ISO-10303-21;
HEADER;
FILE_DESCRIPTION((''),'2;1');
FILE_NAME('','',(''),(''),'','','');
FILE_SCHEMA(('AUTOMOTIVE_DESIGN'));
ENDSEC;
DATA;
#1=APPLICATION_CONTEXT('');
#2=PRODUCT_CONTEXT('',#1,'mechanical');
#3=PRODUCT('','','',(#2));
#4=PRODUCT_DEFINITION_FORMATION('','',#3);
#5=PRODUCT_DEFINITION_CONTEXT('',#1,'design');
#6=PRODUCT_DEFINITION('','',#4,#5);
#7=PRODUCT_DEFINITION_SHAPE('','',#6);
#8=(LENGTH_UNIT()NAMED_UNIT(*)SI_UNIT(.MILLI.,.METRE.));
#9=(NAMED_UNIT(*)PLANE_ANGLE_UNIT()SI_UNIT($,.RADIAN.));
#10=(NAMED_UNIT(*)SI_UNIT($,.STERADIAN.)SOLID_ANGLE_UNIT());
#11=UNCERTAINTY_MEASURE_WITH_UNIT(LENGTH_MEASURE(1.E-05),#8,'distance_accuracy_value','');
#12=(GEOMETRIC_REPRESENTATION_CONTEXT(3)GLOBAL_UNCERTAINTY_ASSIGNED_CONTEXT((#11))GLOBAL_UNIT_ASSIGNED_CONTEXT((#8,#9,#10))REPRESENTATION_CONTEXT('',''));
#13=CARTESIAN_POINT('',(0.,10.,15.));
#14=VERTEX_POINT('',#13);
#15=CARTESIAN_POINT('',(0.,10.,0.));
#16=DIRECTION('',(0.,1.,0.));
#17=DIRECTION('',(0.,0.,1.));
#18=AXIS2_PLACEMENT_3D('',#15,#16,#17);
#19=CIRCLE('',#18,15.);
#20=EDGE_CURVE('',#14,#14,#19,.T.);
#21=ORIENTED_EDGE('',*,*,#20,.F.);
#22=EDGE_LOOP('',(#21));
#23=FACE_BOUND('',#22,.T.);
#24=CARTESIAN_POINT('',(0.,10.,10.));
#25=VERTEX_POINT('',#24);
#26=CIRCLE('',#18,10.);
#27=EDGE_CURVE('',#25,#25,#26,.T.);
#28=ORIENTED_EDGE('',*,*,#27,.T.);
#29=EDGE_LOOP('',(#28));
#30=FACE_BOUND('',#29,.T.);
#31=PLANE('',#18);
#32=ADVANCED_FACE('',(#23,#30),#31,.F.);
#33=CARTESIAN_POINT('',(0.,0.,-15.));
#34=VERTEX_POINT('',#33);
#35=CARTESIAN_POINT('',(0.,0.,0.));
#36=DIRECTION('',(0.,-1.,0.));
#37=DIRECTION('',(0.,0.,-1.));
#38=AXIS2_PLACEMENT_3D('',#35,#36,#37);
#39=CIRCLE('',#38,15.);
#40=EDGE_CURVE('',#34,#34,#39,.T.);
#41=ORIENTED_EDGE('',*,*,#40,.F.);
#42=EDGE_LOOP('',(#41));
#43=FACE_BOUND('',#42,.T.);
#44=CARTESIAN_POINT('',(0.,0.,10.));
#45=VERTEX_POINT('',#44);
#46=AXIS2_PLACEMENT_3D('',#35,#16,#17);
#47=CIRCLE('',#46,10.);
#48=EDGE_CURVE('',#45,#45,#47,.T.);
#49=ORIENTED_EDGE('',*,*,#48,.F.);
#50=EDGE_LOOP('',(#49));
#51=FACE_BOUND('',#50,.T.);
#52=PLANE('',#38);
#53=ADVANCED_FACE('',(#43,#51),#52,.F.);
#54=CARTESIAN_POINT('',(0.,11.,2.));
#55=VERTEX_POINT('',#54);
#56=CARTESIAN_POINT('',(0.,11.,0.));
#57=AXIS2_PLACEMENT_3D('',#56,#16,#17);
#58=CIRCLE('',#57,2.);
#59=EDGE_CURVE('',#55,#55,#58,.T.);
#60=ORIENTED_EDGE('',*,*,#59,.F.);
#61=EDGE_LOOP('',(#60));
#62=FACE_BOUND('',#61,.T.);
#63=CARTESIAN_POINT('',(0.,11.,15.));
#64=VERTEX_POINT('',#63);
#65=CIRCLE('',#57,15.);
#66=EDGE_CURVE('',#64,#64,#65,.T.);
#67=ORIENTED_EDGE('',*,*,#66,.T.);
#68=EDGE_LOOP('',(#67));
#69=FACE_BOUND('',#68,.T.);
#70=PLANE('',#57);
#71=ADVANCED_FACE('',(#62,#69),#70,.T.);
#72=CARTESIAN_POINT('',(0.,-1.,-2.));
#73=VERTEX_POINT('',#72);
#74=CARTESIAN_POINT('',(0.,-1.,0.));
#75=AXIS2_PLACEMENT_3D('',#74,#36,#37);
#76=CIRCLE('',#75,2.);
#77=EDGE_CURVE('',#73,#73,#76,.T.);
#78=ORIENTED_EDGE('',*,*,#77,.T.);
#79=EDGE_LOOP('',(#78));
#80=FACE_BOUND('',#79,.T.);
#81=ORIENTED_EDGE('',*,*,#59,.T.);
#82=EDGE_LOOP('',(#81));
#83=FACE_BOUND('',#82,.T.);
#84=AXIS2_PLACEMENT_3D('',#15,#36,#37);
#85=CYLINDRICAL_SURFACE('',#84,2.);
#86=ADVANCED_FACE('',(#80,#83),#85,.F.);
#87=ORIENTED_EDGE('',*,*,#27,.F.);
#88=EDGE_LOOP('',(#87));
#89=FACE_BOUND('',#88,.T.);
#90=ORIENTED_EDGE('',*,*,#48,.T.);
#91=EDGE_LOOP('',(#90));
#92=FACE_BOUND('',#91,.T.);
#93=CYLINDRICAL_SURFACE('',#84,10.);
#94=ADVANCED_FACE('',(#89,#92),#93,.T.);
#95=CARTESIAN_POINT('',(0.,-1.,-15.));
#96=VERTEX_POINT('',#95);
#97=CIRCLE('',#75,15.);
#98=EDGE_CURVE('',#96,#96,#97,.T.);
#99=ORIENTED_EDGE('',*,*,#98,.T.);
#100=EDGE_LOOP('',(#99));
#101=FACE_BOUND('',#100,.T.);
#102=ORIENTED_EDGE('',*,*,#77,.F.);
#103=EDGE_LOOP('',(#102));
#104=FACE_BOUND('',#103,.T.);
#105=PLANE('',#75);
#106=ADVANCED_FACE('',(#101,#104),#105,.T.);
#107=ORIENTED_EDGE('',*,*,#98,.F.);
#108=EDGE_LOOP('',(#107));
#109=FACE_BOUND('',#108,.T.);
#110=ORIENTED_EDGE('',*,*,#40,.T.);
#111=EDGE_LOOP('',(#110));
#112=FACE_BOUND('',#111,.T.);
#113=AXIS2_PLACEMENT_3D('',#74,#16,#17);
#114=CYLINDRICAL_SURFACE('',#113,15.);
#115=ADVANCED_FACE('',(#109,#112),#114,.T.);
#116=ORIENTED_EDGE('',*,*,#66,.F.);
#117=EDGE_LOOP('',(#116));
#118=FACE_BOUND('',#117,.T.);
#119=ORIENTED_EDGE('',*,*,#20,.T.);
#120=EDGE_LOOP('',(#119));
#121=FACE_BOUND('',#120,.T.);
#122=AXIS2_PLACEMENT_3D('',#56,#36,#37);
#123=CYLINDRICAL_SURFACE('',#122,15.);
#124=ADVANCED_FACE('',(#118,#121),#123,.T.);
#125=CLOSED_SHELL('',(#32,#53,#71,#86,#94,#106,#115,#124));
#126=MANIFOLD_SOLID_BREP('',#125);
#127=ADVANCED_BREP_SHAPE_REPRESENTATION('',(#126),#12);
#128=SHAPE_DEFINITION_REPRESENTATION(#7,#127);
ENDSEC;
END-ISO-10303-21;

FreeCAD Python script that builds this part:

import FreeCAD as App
import Part
import Sketcher
from FreeCAD import Vector

doc = App.newDocument("Part")
body = doc.addObject("PartDesign::Body", "Body")

# Sketch on XZ plane
sketch1 = body.newObject("Sketcher::SketchObject", "Sketch")
sketch1.AttachmentSupport = (doc.getObject("XZ_Plane"), [""])
sketch1.MapMode = "FlatFace"
sketch1.addGeometry([
    Part.Circle(Vector(0, 0, 0), Vector(0, 0, 1), 10),
    Part.Circle(Vector(0, 0, 0), Vector(0, 0, 1), 2),
], False)
sketch1.addConstraint([
    Sketcher.Constraint("Coincident", 0, 3, -1, 1),
    Sketcher.Constraint("Coincident", 1, 3, -1, 1),
    Sketcher.Constraint("Diameter", 0, 20.0),
    Sketcher.Constraint("Diameter", 1, 4.0),
])
pad1 = body.newObject("PartDesign::Pad", "Pad")
pad1.Profile = sketch1
pad1.Length = 10
pad1.Reversed = True

# Sketch on XZ plane
sketch2 = body.newObject("Sketcher::SketchObject", "Sketch001")
sketch2.AttachmentSupport = (doc.getObject("XZ_Plane"), [""])
sketch2.MapMode = "FlatFace"
sketch2.AttachmentOffset = App.Placement(Vector(0, 0, -10), App.Rotation())
sketch2.addGeometry([
    Part.Circle(Vector(0, 0, 0), Vector(0, 0, 1), 15),
    Part.Circle(Vector(0, 0, 0), Vector(0, 0, 1), 2),
], False)
sketch2.addConstraint([
    Sketcher.Constraint("Coincident", 0, 3, -1, 1),
    Sketcher.Constraint("Coincident", 1, 3, -1, 1),
    Sketcher.Constraint("Diameter", 0, 30.0),
    Sketcher.Constraint("Diameter", 1, 4.0),
])
pad2 = body.newObject("PartDesign::Pad", "Pad001")
pad2.Profile = sketch2
pad2.Length = 1
pad2.Reversed = True

# Sketch on XZ plane
sketch3 = body.newObject("Sketcher::SketchObject", "Sketch002")
sketch3.AttachmentSupport = (doc.getObject("XZ_Plane"), [""])
sketch3.MapMode = "FlatFace"
sketch3.AttachmentOffset = App.Placement(Vector(0, 0, 1), App.Rotation())
sketch3.addGeometry([
    Part.Circle(Vector(0, 0, 0), Vector(0, 0, 1), 15),
    Part.Circle(Vector(0, 0, 0), Vector(0, 0, 1), 2),
], False)
sketch3.addConstraint([
    Sketcher.Constraint("Coincident", 0, 3, -1, 1),
    Sketcher.Constraint("Coincident", 1, 3, -1, 1),
    Sketcher.Constraint("Diameter", 0, 30.0),
    Sketcher.Constraint("Diameter", 1, 4.0),
])
pad3 = body.newObject("PartDesign::Pad", "Pad002")
pad3.Profile = sketch3
pad3.Length = 1
pad3.Reversed = True

doc.recompute()
